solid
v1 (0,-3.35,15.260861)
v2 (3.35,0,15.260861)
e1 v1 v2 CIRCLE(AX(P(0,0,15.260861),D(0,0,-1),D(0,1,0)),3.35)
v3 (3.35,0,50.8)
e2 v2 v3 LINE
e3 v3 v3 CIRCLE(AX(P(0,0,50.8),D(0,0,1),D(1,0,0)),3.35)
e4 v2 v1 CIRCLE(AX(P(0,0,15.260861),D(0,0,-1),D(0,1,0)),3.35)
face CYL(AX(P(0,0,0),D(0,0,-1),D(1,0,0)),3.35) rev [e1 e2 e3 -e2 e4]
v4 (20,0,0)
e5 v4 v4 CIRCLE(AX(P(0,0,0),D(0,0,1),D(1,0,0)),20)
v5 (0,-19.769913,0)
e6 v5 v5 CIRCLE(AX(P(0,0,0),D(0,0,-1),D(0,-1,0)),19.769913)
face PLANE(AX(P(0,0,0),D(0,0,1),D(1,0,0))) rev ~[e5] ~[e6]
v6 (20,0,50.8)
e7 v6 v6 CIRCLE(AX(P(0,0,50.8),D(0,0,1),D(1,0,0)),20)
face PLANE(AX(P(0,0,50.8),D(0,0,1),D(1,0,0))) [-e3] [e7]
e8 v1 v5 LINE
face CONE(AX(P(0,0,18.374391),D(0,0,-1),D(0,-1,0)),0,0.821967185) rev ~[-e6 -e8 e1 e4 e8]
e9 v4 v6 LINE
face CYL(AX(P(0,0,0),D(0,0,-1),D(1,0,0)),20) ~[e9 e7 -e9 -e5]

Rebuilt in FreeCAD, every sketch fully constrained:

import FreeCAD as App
import Part
import Sketcher
from FreeCAD import Vector


def add_polygon(sketch, points):
    """Adds a closed chain of lines whose ends are joined by coincident constraints."""
    first, n = sketch.GeometryCount, len(points)
    for a, b in zip(points, points[1:] + points[:1]):
        sketch.addGeometry(Part.LineSegment(App.Vector(*a, 0), App.Vector(*b, 0)), False)
    for i in range(n):
        sketch.addConstraint(Sketcher.Constraint("Coincident", first + i, 2, first + (i + 1) % n, 1))

doc = App.newDocument("Part")
body = doc.addObject("PartDesign::Body", "Body")

# Sketch on XY plane
sketch1 = doc.addObject("Sketcher::SketchObject", "Sketch")
body.addObject(sketch1)
sketch1.AttachmentSupport = (doc.XY_Plane, [""])
sketch1.MapMode = "FlatFace"
sketch1.addGeometry([
    Part.Circle(Vector(0, 0, 0), Vector(0, 0, 1), 20),
    Part.Circle(Vector(0, 0, 0), Vector(0, 0, 1), 3.4),
], False)
sketch1.addConstraint([
    Sketcher.Constraint("Coincident", 0, 3, -1, 1),
    Sketcher.Constraint("Coincident", 1, 3, -1, 1),
    Sketcher.Constraint("Diameter", 0, 40.0),
    Sketcher.Constraint("Diameter", 1, 6.7),
])
pad1 = doc.addObject("PartDesign::Pad", "Pad")
body.addObject(pad1)
pad1.Profile = sketch1
pad1.Length = 50.8

# Sketch on YZ plane
sketch2 = doc.addObject("Sketcher::SketchObject", "Sketch001")
body.addObject(sketch2)
sketch2.AttachmentSupport = (doc.YZ_Plane, [""])
sketch2.MapMode = "FlatFace"
add_polygon(sketch2, [(0, 18), (-20, 0), (0, 0)])  # lines 0-2
sketch2.addConstraint([
    Sketcher.Constraint("Horizontal", 1),
    Sketcher.Constraint("Vertical", 2),
    Sketcher.Constraint("Coincident", 1, 2, -1, 1),
    Sketcher.Constraint("DistanceY", 2, 1, 2, 2, 18.374391),
    Sketcher.Constraint("Distance", 0, 26.990141),
])
groove = doc.addObject("PartDesign::Groove", "Groove")
body.addObject(groove)
groove.Profile = sketch2
groove.ReferenceAxis = (sketch2, ["V_Axis"])
groove.Angle = 360

doc.recompute()
